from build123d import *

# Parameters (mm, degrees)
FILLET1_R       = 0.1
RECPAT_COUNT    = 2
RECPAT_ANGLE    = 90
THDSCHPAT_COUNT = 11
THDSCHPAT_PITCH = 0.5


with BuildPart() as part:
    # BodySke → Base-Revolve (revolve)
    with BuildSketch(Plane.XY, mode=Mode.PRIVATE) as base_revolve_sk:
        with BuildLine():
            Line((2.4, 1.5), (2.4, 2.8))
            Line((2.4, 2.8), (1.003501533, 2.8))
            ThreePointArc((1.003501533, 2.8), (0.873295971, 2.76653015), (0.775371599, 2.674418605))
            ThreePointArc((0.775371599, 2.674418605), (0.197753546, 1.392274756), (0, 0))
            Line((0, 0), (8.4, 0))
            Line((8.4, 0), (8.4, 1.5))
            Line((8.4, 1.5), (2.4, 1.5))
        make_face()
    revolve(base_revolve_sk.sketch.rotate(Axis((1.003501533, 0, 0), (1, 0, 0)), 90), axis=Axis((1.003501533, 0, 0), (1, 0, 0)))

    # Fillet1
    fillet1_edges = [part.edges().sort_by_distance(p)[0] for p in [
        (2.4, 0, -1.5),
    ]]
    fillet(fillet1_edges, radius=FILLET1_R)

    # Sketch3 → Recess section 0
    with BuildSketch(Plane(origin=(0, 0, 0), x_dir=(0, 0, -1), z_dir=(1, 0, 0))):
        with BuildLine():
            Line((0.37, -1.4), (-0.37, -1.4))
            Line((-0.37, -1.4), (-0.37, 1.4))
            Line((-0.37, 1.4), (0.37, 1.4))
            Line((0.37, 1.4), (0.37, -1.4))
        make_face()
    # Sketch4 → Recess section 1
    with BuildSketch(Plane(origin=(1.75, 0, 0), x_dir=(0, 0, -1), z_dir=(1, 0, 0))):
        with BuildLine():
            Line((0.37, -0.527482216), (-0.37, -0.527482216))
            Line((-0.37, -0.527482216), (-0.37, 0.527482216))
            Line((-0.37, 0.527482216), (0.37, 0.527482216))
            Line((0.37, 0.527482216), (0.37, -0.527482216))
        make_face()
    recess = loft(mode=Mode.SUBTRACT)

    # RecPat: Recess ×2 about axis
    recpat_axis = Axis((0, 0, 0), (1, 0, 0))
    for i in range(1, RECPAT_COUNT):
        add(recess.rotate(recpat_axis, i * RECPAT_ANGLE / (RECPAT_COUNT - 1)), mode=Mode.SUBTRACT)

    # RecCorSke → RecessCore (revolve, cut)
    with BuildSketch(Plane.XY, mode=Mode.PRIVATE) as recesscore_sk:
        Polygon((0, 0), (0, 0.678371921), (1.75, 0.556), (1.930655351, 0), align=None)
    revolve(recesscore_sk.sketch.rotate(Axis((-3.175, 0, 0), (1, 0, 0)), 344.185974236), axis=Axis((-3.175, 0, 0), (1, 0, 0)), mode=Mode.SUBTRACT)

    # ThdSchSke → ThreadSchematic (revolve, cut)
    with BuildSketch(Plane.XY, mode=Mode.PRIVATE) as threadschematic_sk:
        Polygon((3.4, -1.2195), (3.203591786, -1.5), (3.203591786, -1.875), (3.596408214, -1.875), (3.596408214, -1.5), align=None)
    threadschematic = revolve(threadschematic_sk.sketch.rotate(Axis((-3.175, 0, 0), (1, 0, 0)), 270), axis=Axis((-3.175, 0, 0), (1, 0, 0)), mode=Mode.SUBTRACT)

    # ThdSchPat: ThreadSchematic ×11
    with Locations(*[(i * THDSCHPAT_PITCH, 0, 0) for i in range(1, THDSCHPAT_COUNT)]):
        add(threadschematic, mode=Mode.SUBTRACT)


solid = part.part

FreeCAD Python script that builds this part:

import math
import FreeCAD as App
import Part
import Sketcher

V = App.Vector
Q = App.Units.Quantity


def edges_at(feature, points):
    """Names of the edges that pass closest to the given points."""
    edges = feature.Shape.Edges
    near = lambda p: min(range(len(edges)), key=lambda i: edges[i].distToShape(Part.Vertex(*p))[0])
    return sorted({f"Edge{near(p) + 1}" for p in points})


def add_polygon(sketch, points):
    """Adds a closed chain of lines whose ends are joined by coincident constraints."""
    first, n = sketch.GeometryCount, len(points)
    for a, b in zip(points, points[1:] + points[:1]):
        sketch.addGeometry(Part.LineSegment(App.Vector(*a, 0), App.Vector(*b, 0)), False)
    for i in range(n):
        sketch.addConstraint(Sketcher.Constraint("Coincident", first + i, 2, first + (i + 1) % n, 1))

doc = App.newDocument("Part")
body = doc.addObject("PartDesign::Body", "Body")

sketch1 = body.newObject("Sketcher::SketchObject", "Sketch")
sketch1.AttachmentSupport = (doc.getObject("XY_Plane"), [""])
sketch1.MapMode = "FlatFace"
sketch1.addGeometry(Part.LineSegment(V(2.4, 1.5, 0), V(2.4, 2.8, 0)), False)
sketch1.addGeometry(Part.LineSegment(V(2.4, 2.8, 0), V(1, 2.8, 0)), False)
sketch1.addGeometry(Part.ArcOfCircle(Part.Circle(V(1, 2.53, 0), V(0, 0, 1), 0.27), math.radians(90), math.radians(148)), False)
sketch1.addGeometry(Part.ArcOfCircle(Part.Circle(V(5, 0, 0), V(0, 0, 1), 5), math.radians(148), math.radians(180)), False)
sketch1.addGeometry(Part.LineSegment(V(0, 0, 0), V(8.4, 0, 0)), False)
sketch1.addGeometry(Part.LineSegment(V(8.4, 0, 0), V(8.4, 1.5, 0)), False)
sketch1.addGeometry(Part.LineSegment(V(8.4, 1.5, 0), V(2.4, 1.5, 0)), False)
sketch1.addConstraint(Sketcher.Constraint("Coincident", 0, 2, 1, 1))
sketch1.addConstraint(Sketcher.Constraint("Tangent", 1, 2, 2, 1))
sketch1.addConstraint(Sketcher.Constraint("Tangent", 2, 2, 3, 1))
sketch1.addConstraint(Sketcher.Constraint("Coincident", 3, 2, 4, 1))
sketch1.addConstraint(Sketcher.Constraint("Coincident", 4, 2, 5, 1))
sketch1.addConstraint(Sketcher.Constraint("Coincident", 5, 2, 6, 1))
sketch1.addConstraint(Sketcher.Constraint("Coincident", 6, 2, 0, 1))
sketch1.addConstraint(Sketcher.Constraint("Vertical", 0))
sketch1.addConstraint(Sketcher.Constraint("Horizontal", 1))
sketch1.addConstraint(Sketcher.Constraint("Horizontal", 4))
sketch1.addConstraint(Sketcher.Constraint("Vertical", 5))
sketch1.addConstraint(Sketcher.Constraint("Horizontal", 6))
sketch1.addConstraint(Sketcher.Constraint("Coincident", 3, 2, -1, 1))
sketch1.addConstraint(Sketcher.Constraint("PointOnObject", 3, 3, -1))
sketch1.addConstraint(Sketcher.Constraint("Radius", 3, 5.0))
sketch1.addConstraint(Sketcher.Constraint("DistanceX", 6, 2, 6, 1, 6.0))
sketch1.addConstraint(Sketcher.Constraint("Radius", 2, 0.27))
sketch1.addConstraint(Sketcher.Constraint("DistanceX", 4, 1, 4, 2, 8.4))
sketch1.addConstraint(Sketcher.Constraint("DistanceY", 0, 1, 0, 2, 1.3))
sketch1.addConstraint(Sketcher.Constraint("DistanceY", 5, 1, 5, 2, 1.5))
revolution = body.newObject("PartDesign::Revolution", "Revolution")
revolution.Profile = sketch1
revolution.ReferenceAxis = (sketch1, ["H_Axis"])
revolution.Angle = 360
doc.recompute()

fillet = body.newObject("PartDesign::Fillet", "Fillet")
fillet.Base = (revolution, edges_at(revolution, [(2.4, 0, -1.5)]))
fillet.Radius = 0.1

sketch2 = body.newObject("Sketcher::SketchObject", "Sketch001")
sketch2.AttachmentSupport = (doc.getObject("YZ_Plane"), [""])
sketch2.MapMode = "FlatFace"
add_polygon(sketch2, [(-1.4, 0.4), (-1.4, -0.4), (1.4, -0.4), (1.4, 0.4)])
sketch2.addConstraint(Sketcher.Constraint("Vertical", 0))
sketch2.addConstraint(Sketcher.Constraint("Horizontal", 1))
sketch2.addConstraint(Sketcher.Constraint("Vertical", 2))
sketch2.addConstraint(Sketcher.Constraint("Horizontal", 3))
sketch2.addConstraint(Sketcher.Constraint("Symmetric", 0, 2, 2, 2, -1, 1))
sketch2.addConstraint(Sketcher.Constraint("DistanceX", 1, 1, 1, 2, 2.8))
sketch2.addConstraint(Sketcher.Constraint("DistanceY", 0, 2, 0, 1, 0.74))

sketch3 = body.newObject("Sketcher::SketchObject", "Sketch002")
sketch3.AttachmentSupport = (doc.getObject("YZ_Plane"), [""])
sketch3.MapMode = "FlatFace"
sketch3.AttachmentOffset = App.Placement(V(0, 0, 1.75), App.Rotation())
add_polygon(sketch3, [(-0.5, 0.4), (-0.5, -0.4), (0.5, -0.4), (0.5, 0.4)])
sketch3.addConstraint(Sketcher.Constraint("Vertical", 0))
sketch3.addConstraint(Sketcher.Constraint("Horizontal", 1))
sketch3.addConstraint(Sketcher.Constraint("Vertical", 2))
sketch3.addConstraint(Sketcher.Constraint("Horizontal", 3))
sketch3.addConstraint(Sketcher.Constraint("Symmetric", 0, 2, 2, 2, -1, 1))
sketch3.addConstraint(Sketcher.Constraint("DistanceY", 0, 2, 0, 1, 0.74))
sketch3.addConstraint(Sketcher.Constraint("DistanceX", 1, 1, 1, 2, 1.054964))

subtractiveloft = body.newObject("PartDesign::SubtractiveLoft", "SubtractiveLoft")
subtractiveloft.Profile = sketch2
subtractiveloft.Sections = [sketch3]
doc.recompute()

polarpattern = body.newObject("PartDesign::PolarPattern", "PolarPattern")
polarpattern.Originals = [subtractiveloft]
polarpattern.Axis = (doc.getObject("X_Axis"), [""])
polarpattern.Angle = 90
polarpattern.Occurrences = 2
body.Tip = polarpattern

sketch4 = body.newObject("Sketcher::SketchObject", "Sketch003")
sketch4.AttachmentSupport = (doc.getObject("XY_Plane"), [""])
sketch4.MapMode = "FlatFace"
add_polygon(sketch4, [(0, 0.7), (0, 0), (1.9, 0), (1.8, 0.6)])
sketch4.addConstraint(Sketcher.Constraint("Vertical", 0))
sketch4.addConstraint(Sketcher.Constraint("Horizontal", 1))
sketch4.addConstraint(Sketcher.Constraint("Coincident", 0, 2, -1, 1))
sketch4.addConstraint(Sketcher.Constraint("Angle", 2, Q("108 deg")))
sketch4.addConstraint(Sketcher.Constraint("Angle", 3, Q("176 deg")))
sketch4.addConstraint(Sketcher.Constraint("DistanceX", -1, 1, 2, 2, 1.75))
sketch4.addConstraint(Sketcher.Constraint("DistanceY", -1, 1, 2, 2, 0.556))
groove = body.newObject("PartDesign::Groove", "Groove")
groove.Profile = sketch4
groove.ReferenceAxis = (sketch4, ["H_Axis"])
groove.Angle = 360

sketch5 = body.newObject("Sketcher::SketchObject", "Sketch004")
sketch5.AttachmentSupport = (doc.getObject("XY_Plane"), [""])
sketch5.MapMode = "FlatFace"
add_polygon(sketch5, [(3.4, -1.22), (3.2, -1.5), (3.2, -1.88), (3.6, -1.88), (3.6, -1.5)])
sketch5.addConstraint(Sketcher.Constraint("Vertical", 1))
sketch5.addConstraint(Sketcher.Constraint("Horizontal", 2))
sketch5.addConstraint(Sketcher.Constraint("Vertical", 3))
sketch5.addConstraint(Sketcher.Constraint("Horizontal", 0, 2, 3, 2))
sketch5.addConstraint(Sketcher.Constraint("Equal", 0, 4))
sketch5.addConstraint(Sketcher.Constraint("Angle", 0, Q("-125 deg")))
sketch5.addConstraint(Sketcher.Constraint("DistanceY", 0, 2, -1, 1, 1.5))
sketch5.addConstraint(Sketcher.Constraint("DistanceX", -1, 1, 4, 2, 3.4))
sketch5.addConstraint(Sketcher.Constraint("DistanceY", 1, 2, 1, 1, 0.375))
sketch5.addConstraint(Sketcher.Constraint("DistanceY", 4, 2, -1, 1, 1.2195))
groove2 = body.newObject("PartDesign::Groove", "Groove001")
groove2.Profile = sketch5
groove2.ReferenceAxis = (sketch5, ["H_Axis"])
groove2.Angle = 360
doc.recompute()

linearpattern = body.newObject("PartDesign::LinearPattern", "LinearPattern")
linearpattern.Originals = [groove2]
linearpattern.Direction = (doc.getObject("X_Axis"), [""])
linearpattern.Mode = "offset"
linearpattern.Offset = 0.5
linearpattern.Occurrences = 11
body.Tip = linearpattern

doc.recompute()
